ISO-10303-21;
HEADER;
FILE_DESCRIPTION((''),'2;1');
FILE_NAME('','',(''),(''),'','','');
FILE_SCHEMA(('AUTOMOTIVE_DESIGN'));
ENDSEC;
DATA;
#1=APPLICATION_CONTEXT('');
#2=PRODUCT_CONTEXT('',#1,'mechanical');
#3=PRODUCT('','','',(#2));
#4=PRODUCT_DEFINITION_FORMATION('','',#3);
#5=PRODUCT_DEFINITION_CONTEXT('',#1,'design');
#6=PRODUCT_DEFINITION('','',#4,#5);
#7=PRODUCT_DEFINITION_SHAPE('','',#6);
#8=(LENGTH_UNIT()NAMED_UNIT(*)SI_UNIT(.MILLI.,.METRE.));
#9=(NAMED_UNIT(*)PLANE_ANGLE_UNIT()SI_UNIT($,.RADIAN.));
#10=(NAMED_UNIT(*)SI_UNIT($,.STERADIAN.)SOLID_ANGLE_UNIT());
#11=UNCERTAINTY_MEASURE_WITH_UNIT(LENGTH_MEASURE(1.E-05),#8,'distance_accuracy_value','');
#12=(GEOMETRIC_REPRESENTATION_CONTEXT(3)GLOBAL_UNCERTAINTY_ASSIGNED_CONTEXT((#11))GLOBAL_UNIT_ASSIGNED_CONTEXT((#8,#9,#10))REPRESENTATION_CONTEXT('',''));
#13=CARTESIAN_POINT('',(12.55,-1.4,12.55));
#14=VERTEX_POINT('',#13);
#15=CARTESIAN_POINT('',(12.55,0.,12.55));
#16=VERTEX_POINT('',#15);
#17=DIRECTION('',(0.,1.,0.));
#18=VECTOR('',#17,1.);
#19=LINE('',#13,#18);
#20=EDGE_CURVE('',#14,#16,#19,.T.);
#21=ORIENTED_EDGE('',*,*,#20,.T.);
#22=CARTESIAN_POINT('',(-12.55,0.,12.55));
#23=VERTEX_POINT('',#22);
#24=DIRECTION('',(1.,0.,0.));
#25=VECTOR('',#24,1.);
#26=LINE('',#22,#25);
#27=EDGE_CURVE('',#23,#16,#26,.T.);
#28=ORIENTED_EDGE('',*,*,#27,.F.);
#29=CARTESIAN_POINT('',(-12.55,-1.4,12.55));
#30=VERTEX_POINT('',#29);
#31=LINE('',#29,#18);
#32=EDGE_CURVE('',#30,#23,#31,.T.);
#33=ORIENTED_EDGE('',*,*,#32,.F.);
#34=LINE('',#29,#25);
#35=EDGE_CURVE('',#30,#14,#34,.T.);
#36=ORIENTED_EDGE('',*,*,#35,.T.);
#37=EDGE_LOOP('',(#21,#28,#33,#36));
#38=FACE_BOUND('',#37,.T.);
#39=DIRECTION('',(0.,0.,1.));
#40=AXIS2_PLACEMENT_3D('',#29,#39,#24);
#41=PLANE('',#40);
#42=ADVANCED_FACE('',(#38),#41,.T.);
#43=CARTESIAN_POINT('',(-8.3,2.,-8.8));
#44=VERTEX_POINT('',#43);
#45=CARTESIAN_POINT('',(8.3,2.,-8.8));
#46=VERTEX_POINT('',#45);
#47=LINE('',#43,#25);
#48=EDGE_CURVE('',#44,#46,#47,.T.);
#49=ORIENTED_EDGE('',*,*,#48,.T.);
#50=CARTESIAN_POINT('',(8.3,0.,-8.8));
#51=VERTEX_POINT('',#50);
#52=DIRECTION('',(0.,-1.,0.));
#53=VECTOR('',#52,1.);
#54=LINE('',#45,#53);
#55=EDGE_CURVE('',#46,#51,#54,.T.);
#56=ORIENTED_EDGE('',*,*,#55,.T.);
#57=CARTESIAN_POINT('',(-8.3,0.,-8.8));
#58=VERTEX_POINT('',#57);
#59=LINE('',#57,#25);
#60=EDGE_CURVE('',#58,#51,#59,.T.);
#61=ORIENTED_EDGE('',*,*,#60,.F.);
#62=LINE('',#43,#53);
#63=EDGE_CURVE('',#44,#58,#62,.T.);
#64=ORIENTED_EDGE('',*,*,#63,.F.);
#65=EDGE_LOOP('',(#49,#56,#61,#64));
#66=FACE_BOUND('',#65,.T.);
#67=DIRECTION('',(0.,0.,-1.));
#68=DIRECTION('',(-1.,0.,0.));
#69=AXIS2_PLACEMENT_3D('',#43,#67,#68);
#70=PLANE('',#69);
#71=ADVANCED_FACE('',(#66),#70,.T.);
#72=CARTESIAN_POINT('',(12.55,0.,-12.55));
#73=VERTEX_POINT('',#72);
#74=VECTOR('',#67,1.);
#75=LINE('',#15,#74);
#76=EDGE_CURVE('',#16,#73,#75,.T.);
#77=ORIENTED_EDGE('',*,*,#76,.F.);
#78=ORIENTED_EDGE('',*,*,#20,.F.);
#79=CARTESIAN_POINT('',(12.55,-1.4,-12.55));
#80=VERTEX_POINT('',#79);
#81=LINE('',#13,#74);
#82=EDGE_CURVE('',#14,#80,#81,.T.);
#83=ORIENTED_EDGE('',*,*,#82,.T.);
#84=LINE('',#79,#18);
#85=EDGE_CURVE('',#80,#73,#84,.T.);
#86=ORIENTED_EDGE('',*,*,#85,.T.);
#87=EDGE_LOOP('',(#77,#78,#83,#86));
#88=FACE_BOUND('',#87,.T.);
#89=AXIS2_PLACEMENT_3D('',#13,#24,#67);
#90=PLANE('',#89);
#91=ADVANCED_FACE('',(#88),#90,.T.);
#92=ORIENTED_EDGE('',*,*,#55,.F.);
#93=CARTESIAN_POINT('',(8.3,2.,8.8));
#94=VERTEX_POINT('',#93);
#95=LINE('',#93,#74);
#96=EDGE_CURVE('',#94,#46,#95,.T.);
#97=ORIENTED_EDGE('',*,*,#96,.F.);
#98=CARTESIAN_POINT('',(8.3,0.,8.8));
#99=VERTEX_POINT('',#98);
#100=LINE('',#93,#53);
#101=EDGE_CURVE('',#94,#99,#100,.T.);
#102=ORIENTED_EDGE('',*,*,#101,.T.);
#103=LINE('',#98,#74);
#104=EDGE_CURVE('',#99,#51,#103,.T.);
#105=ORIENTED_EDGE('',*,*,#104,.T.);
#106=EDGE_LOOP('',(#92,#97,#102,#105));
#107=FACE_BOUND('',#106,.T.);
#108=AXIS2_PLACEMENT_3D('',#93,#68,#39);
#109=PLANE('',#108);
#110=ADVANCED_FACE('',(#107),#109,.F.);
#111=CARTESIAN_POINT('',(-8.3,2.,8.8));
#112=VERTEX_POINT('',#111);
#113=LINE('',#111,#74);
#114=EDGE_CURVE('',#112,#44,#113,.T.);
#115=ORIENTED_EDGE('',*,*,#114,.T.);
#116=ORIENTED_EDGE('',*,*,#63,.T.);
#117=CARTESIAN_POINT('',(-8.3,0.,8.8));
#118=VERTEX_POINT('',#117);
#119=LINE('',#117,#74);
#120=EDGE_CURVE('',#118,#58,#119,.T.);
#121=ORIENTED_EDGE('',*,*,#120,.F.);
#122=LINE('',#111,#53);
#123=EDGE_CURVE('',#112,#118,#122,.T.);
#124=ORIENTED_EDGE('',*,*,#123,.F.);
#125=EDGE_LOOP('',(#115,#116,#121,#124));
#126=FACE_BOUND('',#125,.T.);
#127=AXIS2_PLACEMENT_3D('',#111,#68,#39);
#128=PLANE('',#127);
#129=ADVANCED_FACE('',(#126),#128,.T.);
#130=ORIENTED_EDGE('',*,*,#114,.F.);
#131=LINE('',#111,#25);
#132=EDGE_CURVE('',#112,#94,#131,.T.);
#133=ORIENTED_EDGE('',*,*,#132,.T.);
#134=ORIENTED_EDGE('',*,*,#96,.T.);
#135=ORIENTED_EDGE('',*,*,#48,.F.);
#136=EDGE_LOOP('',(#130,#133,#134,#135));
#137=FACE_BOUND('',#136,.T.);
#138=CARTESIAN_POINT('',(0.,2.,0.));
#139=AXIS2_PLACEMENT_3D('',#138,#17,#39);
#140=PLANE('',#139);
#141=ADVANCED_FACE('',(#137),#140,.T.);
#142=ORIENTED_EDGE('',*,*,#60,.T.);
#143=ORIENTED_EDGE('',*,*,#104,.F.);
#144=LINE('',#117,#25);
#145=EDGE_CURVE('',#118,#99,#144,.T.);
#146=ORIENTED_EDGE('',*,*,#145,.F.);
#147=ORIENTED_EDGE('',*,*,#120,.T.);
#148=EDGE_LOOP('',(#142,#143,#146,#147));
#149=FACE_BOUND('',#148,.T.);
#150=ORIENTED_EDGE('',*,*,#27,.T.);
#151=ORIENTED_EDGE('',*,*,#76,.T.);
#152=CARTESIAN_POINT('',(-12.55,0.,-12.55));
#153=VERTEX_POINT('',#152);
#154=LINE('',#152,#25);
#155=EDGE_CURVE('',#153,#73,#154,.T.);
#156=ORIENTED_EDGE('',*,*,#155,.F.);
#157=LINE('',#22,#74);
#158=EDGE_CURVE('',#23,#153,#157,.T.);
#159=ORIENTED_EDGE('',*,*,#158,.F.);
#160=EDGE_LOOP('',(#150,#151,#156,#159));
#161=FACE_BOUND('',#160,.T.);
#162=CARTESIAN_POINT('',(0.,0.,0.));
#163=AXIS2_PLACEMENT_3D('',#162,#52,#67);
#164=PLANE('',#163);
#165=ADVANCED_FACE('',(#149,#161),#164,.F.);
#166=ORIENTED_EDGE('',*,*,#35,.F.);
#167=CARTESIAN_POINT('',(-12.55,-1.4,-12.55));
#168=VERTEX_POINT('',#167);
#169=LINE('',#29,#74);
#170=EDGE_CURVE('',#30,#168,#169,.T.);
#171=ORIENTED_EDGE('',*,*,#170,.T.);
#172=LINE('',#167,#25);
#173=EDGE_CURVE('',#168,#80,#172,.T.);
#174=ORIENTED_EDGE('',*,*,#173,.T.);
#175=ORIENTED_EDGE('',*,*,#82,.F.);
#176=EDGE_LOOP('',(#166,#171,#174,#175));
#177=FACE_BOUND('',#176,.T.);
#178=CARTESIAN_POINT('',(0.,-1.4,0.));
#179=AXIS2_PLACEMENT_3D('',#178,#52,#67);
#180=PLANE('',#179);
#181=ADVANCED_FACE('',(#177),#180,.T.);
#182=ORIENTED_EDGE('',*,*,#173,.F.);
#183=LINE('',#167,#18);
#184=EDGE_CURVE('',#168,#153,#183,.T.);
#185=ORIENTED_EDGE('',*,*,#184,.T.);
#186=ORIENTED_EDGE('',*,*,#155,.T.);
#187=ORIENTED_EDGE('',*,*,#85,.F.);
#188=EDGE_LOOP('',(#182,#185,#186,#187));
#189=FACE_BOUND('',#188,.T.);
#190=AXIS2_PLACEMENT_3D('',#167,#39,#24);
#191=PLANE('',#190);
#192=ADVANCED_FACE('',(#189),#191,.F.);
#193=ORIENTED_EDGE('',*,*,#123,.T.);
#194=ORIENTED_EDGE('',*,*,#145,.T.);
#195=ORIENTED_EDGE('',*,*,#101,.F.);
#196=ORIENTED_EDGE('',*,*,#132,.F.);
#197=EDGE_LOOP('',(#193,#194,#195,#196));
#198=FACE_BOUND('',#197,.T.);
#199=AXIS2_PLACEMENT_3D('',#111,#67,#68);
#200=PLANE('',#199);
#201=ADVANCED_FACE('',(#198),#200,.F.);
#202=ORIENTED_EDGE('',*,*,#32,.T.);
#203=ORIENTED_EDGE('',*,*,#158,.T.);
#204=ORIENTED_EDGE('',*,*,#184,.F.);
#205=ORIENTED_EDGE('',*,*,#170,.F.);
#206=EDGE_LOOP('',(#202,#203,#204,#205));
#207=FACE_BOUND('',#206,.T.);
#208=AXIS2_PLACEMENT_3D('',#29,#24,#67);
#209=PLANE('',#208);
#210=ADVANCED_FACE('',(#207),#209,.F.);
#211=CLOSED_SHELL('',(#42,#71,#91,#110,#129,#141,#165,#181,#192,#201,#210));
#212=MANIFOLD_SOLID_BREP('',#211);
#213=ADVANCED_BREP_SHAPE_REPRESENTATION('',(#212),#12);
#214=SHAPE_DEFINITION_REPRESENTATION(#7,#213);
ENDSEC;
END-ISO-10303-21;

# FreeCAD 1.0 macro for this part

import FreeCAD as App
import Part
import Sketcher
Q = App.Units.Quantity


def add_polygon(sketch, points):
    """Adds a closed chain of lines whose ends are joined by coincident constraints."""
    first, n = sketch.GeometryCount, len(points)
    for a, b in zip(points, points[1:] + points[:1]):
        sketch.addGeometry(Part.LineSegment(App.Vector(*a, 0), App.Vector(*b, 0)), False)
    for i in range(n):
        sketch.addConstraint(Sketcher.Constraint("Coincident", first + i, 2, first + (i + 1) % n, 1))

doc = App.newDocument("Part")
body = doc.addObject("PartDesign::Body", "Body")

sketch1 = doc.addObject("Sketcher::SketchObject", "Sketch")
body.addObject(sketch1)
sketch1.AttachmentSupport = (doc.XZ_Plane, [""])
sketch1.MapMode = "FlatFace"
add_polygon(sketch1, [(-8, -9), (-8, 9), (8, 9), (8, -9)])
sketch1.addConstraint([
    Sketcher.Constraint("Vertical", 0),
    Sketcher.Constraint("Horizontal", 1),
    Sketcher.Constraint("Vertical", 2),
    Sketcher.Constraint("Horizontal", 3),
    Sketcher.Constraint("Symmetric", 0, 2, 2, 2, -1, 1),
    Sketcher.Constraint("DistanceX", 1, 1, 1, 2, Q("16.6 mm")),
    Sketcher.Constraint("DistanceY", 0, 1, 0, 2, Q("17.6 mm")),
])
pad1 = doc.addObject("PartDesign::Pad", "Pad")
body.addObject(pad1)
pad1.Profile = sketch1
pad1.Length = 2
pad1.Reversed = True

sketch2 = doc.addObject("Sketcher::SketchObject", "Sketch001")
body.addObject(sketch2)
sketch2.AttachmentSupport = (doc.XZ_Plane, [""])
sketch2.MapMode = "FlatFace"
add_polygon(sketch2, [(-13, -13), (-13, 13), (13, 13), (13, -13)])
sketch2.addConstraint([
    Sketcher.Constraint("Vertical", 0),
    Sketcher.Constraint("Horizontal", 1),
    Sketcher.Constraint("Vertical", 2),
    Sketcher.Constraint("Horizontal", 3),
    Sketcher.Constraint("Symmetric", 0, 2, 2, 2, -1, 1),
    Sketcher.Constraint("Equal", 3, 0),
    Sketcher.Constraint("DistanceX", 1, 1, 1, 2, Q("25.1 mm")),
])
pad2 = doc.addObject("PartDesign::Pad", "Pad001")
body.addObject(pad2)
pad2.Profile = sketch2
pad2.Length = 1.4

doc.recompute()
